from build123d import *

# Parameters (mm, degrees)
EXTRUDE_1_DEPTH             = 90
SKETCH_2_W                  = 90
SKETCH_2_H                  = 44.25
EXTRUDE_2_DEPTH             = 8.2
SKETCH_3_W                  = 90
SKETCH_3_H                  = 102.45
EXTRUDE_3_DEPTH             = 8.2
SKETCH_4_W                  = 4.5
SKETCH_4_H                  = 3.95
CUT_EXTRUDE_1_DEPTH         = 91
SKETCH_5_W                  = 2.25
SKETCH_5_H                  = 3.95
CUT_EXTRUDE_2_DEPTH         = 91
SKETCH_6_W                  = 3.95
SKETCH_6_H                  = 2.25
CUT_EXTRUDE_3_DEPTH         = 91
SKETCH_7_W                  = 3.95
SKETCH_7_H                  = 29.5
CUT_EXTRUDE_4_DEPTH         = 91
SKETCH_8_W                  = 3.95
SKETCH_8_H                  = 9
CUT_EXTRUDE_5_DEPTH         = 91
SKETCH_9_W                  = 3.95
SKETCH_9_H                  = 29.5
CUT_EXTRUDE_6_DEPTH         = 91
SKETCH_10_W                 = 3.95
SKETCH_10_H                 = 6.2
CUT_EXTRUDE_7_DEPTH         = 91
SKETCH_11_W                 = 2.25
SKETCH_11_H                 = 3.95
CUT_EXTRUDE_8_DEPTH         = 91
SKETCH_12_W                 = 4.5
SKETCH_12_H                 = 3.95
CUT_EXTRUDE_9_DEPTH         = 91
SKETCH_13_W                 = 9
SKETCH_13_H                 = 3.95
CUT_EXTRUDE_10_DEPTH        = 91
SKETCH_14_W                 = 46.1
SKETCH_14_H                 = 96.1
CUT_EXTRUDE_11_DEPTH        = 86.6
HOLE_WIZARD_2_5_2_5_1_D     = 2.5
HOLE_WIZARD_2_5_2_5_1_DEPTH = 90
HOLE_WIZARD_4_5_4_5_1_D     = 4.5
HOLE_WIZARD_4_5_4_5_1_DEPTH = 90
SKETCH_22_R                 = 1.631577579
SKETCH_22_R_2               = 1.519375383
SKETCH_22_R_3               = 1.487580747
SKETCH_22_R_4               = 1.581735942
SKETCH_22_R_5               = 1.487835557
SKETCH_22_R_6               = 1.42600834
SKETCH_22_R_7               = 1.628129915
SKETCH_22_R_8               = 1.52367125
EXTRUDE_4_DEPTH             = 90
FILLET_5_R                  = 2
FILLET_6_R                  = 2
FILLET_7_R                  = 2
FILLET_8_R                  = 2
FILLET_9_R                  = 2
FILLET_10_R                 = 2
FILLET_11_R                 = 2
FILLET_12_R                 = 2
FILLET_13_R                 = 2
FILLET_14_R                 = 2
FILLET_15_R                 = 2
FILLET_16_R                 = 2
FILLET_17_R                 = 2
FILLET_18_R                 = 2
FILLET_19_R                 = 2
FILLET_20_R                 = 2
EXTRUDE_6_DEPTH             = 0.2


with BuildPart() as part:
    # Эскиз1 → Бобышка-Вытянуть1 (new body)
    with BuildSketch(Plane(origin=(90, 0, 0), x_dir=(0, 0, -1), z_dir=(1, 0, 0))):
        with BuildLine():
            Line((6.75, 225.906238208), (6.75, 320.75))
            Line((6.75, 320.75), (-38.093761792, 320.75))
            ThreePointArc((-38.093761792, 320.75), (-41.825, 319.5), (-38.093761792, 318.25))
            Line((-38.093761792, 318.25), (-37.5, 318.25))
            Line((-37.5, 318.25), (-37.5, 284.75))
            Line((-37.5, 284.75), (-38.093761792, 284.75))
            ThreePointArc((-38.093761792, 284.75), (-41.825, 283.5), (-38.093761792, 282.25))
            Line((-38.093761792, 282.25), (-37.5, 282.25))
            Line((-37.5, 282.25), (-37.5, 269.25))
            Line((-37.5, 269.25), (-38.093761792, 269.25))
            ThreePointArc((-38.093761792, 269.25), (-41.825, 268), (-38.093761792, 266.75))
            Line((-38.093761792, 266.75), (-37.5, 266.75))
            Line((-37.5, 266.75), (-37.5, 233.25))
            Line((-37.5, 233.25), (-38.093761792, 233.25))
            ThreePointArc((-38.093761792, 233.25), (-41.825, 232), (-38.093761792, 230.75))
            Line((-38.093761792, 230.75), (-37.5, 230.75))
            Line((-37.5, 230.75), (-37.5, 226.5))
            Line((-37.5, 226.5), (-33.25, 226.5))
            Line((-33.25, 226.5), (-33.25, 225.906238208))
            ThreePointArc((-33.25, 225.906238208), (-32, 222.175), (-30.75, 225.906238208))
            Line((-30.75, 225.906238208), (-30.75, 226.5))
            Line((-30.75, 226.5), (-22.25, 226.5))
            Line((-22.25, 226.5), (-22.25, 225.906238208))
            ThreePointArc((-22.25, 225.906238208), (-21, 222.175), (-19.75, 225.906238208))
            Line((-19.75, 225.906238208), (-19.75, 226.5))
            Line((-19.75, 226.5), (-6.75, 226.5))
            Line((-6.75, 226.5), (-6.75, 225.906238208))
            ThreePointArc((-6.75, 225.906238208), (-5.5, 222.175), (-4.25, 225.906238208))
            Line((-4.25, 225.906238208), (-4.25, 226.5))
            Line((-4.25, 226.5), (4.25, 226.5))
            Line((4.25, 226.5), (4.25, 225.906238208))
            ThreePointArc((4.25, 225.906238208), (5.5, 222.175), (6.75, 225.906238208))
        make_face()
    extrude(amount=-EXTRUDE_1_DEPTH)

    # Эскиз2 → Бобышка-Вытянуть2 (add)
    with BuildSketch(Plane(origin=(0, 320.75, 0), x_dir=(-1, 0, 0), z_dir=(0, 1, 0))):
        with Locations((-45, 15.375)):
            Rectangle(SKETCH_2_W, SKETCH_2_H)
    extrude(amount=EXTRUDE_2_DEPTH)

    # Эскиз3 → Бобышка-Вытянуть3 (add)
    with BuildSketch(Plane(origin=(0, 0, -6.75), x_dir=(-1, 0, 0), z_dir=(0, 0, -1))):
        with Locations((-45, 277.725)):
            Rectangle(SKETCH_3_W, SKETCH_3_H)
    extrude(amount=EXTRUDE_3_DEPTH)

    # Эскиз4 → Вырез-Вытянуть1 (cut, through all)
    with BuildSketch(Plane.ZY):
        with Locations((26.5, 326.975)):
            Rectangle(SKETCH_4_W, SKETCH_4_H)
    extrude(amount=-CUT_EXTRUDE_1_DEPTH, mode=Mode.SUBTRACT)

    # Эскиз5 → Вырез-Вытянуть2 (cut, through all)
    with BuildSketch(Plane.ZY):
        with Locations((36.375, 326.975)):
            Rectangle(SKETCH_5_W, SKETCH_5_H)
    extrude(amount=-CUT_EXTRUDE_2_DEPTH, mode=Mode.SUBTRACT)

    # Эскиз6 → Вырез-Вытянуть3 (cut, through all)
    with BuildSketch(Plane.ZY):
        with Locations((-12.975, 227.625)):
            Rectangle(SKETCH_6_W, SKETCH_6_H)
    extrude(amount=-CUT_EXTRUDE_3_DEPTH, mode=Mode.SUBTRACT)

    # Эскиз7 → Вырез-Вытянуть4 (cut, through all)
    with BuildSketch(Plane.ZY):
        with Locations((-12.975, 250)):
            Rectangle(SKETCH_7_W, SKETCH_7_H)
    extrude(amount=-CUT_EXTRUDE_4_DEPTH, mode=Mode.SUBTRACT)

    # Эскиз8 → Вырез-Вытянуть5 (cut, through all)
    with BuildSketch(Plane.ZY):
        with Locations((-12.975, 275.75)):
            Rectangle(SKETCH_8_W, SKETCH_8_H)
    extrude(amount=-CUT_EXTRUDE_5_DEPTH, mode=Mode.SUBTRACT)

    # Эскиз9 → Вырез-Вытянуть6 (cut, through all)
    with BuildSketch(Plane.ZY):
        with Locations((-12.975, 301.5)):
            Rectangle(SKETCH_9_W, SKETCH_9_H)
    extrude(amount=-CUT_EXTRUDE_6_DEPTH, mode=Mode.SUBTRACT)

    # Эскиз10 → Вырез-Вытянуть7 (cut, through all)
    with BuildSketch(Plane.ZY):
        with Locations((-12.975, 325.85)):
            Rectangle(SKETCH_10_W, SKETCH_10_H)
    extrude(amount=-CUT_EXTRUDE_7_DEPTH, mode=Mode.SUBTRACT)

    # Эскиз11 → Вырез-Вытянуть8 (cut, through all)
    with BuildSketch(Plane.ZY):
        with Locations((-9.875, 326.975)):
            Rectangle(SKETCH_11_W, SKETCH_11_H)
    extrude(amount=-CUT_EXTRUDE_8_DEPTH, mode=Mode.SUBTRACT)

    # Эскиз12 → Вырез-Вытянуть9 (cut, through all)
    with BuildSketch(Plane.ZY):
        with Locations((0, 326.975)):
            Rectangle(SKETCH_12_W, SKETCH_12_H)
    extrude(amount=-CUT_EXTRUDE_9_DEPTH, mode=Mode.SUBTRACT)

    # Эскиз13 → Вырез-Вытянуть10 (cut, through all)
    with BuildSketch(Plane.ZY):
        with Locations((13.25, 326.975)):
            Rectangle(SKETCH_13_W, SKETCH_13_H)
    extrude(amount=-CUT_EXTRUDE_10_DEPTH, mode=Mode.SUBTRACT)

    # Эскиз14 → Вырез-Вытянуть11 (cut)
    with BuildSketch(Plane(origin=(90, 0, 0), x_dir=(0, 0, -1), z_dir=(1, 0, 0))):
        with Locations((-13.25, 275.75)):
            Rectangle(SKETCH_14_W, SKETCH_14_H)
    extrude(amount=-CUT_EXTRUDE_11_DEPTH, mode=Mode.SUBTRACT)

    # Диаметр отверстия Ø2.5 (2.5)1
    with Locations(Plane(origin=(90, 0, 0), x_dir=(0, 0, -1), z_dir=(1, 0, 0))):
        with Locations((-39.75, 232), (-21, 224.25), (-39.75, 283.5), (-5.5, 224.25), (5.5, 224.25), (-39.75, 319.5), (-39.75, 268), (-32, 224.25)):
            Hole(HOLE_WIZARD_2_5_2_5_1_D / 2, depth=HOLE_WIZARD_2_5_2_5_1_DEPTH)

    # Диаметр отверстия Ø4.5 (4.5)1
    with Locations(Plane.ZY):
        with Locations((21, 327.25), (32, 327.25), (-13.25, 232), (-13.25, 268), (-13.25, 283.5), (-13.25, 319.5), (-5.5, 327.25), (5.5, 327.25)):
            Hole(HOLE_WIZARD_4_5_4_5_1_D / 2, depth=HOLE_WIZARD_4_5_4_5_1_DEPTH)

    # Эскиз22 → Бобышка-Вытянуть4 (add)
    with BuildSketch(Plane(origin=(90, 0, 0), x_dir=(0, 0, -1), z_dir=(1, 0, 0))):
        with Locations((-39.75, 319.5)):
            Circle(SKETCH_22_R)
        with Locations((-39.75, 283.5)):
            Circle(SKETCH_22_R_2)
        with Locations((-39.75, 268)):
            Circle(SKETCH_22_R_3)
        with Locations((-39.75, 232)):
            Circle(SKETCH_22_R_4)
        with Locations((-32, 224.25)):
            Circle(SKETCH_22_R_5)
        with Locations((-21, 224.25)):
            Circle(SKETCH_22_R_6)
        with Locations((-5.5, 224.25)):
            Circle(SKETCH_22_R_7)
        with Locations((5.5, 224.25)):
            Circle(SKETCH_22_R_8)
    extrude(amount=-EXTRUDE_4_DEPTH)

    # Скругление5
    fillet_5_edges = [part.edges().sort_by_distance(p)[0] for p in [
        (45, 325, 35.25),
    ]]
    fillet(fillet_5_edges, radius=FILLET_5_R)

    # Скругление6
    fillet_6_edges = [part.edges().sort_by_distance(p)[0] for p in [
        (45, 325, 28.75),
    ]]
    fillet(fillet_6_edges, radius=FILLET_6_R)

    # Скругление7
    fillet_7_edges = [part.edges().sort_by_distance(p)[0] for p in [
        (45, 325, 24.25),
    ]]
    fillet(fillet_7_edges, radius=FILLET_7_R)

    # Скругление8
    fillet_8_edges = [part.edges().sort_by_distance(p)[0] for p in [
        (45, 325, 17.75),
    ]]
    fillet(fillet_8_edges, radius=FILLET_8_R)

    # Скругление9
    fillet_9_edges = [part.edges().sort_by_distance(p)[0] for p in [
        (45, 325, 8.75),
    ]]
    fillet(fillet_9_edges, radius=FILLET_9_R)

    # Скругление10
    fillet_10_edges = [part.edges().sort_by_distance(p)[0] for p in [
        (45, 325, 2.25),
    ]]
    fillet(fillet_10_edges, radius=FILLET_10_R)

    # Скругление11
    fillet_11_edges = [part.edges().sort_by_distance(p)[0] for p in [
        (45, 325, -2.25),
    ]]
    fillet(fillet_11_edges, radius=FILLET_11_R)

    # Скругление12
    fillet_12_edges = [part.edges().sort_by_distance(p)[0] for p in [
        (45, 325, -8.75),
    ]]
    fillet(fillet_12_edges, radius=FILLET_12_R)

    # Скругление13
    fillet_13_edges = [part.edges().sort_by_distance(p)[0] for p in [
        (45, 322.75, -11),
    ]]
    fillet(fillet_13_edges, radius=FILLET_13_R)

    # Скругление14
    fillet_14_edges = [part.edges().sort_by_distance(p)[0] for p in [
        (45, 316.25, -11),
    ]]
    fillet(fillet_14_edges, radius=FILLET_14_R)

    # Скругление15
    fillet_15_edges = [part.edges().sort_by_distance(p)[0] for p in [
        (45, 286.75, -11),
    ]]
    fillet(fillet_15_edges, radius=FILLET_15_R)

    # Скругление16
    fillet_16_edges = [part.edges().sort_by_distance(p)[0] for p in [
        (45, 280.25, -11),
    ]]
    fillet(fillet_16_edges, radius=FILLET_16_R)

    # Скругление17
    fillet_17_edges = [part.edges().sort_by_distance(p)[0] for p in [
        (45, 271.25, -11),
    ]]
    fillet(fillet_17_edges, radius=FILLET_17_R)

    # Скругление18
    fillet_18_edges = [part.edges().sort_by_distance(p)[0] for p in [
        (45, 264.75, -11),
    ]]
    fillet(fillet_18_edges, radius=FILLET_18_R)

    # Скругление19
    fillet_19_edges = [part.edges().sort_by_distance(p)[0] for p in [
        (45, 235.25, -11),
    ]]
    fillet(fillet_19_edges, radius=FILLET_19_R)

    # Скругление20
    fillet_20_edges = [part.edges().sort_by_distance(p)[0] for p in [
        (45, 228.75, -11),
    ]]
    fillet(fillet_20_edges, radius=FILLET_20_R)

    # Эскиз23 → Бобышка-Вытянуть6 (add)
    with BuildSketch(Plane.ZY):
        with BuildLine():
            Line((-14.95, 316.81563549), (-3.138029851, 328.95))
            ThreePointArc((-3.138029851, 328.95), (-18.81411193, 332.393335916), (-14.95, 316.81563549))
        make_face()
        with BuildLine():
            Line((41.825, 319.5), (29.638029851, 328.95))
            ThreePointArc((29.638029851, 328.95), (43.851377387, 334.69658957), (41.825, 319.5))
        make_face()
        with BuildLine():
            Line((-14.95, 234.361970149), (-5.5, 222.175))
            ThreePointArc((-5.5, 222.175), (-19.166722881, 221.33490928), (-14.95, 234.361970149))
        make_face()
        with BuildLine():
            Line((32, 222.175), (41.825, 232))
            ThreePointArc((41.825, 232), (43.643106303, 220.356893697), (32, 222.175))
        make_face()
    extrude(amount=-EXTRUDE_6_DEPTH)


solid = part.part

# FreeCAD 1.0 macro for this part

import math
import FreeCAD as App
import Part
import Sketcher
from FreeCAD import Vector
Q = App.Units.Quantity


def edges_at(feature, points):
    """Names of the edges that pass closest to the given points."""
    edges = feature.Shape.Edges
    near = lambda p: min(range(len(edges)), key=lambda i: edges[i].distToShape(Part.Vertex(*p))[0])
    return sorted({f"Edge{near(p) + 1}" for p in points})


def add_polygon(sketch, points):
    """Adds a closed chain of lines whose ends are joined by coincident constraints."""
    first, n = sketch.GeometryCount, len(points)
    for a, b in zip(points, points[1:] + points[:1]):
        sketch.addGeometry(Part.LineSegment(App.Vector(*a, 0), App.Vector(*b, 0)), False)
    for i in range(n):
        sketch.addConstraint(Sketcher.Constraint("Coincident", first + i, 2, first + (i + 1) % n, 1))

doc = App.newDocument("Part")
body = doc.addObject("PartDesign::Body", "Body")

sketch1 = body.newObject("Sketcher::SketchObject", "Sketch")
sketch1.AttachmentSupport = (doc.getObject("YZ_Plane"), [""])
sketch1.MapMode = "FlatFace"
sketch1.AttachmentOffset = App.Placement(Vector(0, 0, 90), App.Rotation())
sketch1.addGeometry([
    Part.LineSegment(Vector(225.9, -6.8, 0), Vector(320.8, -6.8, 0)),
    Part.LineSegment(Vector(320.8, -6.8, 0), Vector(320.8, 38.1, 0)),
    Part.ArcOfCircle(Part.Circle(Vector(319.5, 39.8, 0), Vector(0, 0, 1), 2.1), math.radians(-53), math.radians(233)),
    Part.LineSegment(Vector(318.2, 38.1, 0), Vector(318.2, 37.5, 0)),
    Part.LineSegment(Vector(318.2, 37.5, 0), Vector(284.8, 37.5, 0)),
    Part.LineSegment(Vector(284.8, 37.5, 0), Vector(284.8, 38.1, 0)),
    Part.ArcOfCircle(Part.Circle(Vector(283.5, 39.8, 0), Vector(0, 0, 1), 2.1), math.radians(-53), math.radians(233)),
    Part.LineSegment(Vector(282.2, 38.1, 0), Vector(282.2, 37.5, 0)),
    Part.LineSegment(Vector(282.2, 37.5, 0), Vector(269.2, 37.5, 0)),
    Part.LineSegment(Vector(269.2, 37.5, 0), Vector(269.2, 38.1, 0)),
    Part.ArcOfCircle(Part.Circle(Vector(268, 39.8, 0), Vector(0, 0, 1), 2.1), math.radians(-53), math.radians(233)),
    Part.LineSegment(Vector(266.8, 38.1, 0), Vector(266.8, 37.5, 0)),
    Part.LineSegment(Vector(266.8, 37.5, 0), Vector(233.2, 37.5, 0)),
    Part.LineSegment(Vector(233.2, 37.5, 0), Vector(233.2, 38.1, 0)),
    Part.ArcOfCircle(Part.Circle(Vector(232, 39.8, 0), Vector(0, 0, 1), 2.1), math.radians(-53), math.radians(233)),
    Part.LineSegment(Vector(230.8, 38.1, 0), Vector(230.8, 37.5, 0)),
    Part.LineSegment(Vector(230.8, 37.5, 0), Vector(226.5, 37.5, 0)),
    Part.LineSegment(Vector(226.5, 37.5, 0), Vector(226.5, 33.2, 0)),
    Part.LineSegment(Vector(226.5, 33.2, 0), Vector(225.9, 33.2, 0)),
    Part.ArcOfCircle(Part.Circle(Vector(224.2, 32, 0), Vector(0, 0, 1), 2.1), math.radians(37), math.radians(323)),
    Part.LineSegment(Vector(225.9, 30.8, 0), Vector(226.5, 30.8, 0)),
    Part.LineSegment(Vector(226.5, 30.8, 0), Vector(226.5, 22.2, 0)),
    Part.LineSegment(Vector(226.5, 22.2, 0), Vector(225.9, 22.2, 0)),
    Part.ArcOfCircle(Part.Circle(Vector(224.2, 21, 0), Vector(0, 0, 1), 2.1), math.radians(37), math.radians(323)),
    Part.LineSegment(Vector(225.9, 19.8, 0), Vector(226.5, 19.8, 0)),
    Part.LineSegment(Vector(226.5, 19.8, 0), Vector(226.5, 6.8, 0)),
    Part.LineSegment(Vector(226.5, 6.8, 0), Vector(225.9, 6.8, 0)),
    Part.ArcOfCircle(Part.Circle(Vector(224.2, 5.5, 0), Vector(0, 0, 1), 2.1), math.radians(37), math.radians(323)),
    Part.LineSegment(Vector(225.9, 4.2, 0), Vector(226.5, 4.2, 0)),
    Part.LineSegment(Vector(226.5, 4.2, 0), Vector(226.5, -4.2, 0)),
    Part.LineSegment(Vector(226.5, -4.2, 0), Vector(225.9, -4.2, 0)),
    Part.ArcOfCircle(Part.Circle(Vector(224.2, -5.5, 0), Vector(0, 0, 1), 2.1), math.radians(37), math.radians(323)),
], False)
sketch1.addConstraint([
    Sketcher.Constraint("Coincident", 0, 2, 1, 1),
    Sketcher.Constraint("Coincident", 1, 2, 2, 1),
    Sketcher.Constraint("Coincident", 2, 2, 3, 1),
    Sketcher.Constraint("Coincident", 3, 2, 4, 1),
    Sketcher.Constraint("Coincident", 4, 2, 5, 1),
    Sketcher.Constraint("Coincident", 5, 2, 6, 1),
    Sketcher.Constraint("Coincident", 6, 2, 7, 1),
    Sketcher.Constraint("Coincident", 7, 2, 8, 1),
    Sketcher.Constraint("Coincident", 8, 2, 9, 1),
    Sketcher.Constraint("Coincident", 9, 2, 10, 1),
    Sketcher.Constraint("Coincident", 10, 2, 11, 1),
    Sketcher.Constraint("Coincident", 11, 2, 12, 1),
    Sketcher.Constraint("Coincident", 12, 2, 13, 1),
    Sketcher.Constraint("Coincident", 13, 2, 14, 1),
    Sketcher.Constraint("Coincident", 14, 2, 15, 1),
    Sketcher.Constraint("Coincident", 15, 2, 16, 1),
    Sketcher.Constraint("Coincident", 16, 2, 17, 1),
    Sketcher.Constraint("Coincident", 17, 2, 18, 1),
    Sketcher.Constraint("Coincident", 18, 2, 19, 1),
    Sketcher.Constraint("Coincident", 19, 2, 20, 1),
    Sketcher.Constraint("Coincident", 20, 2, 21, 1),
    Sketcher.Constraint("Coincident", 21, 2, 22, 1),
    Sketcher.Constraint("Coincident", 22, 2, 23, 1),
    Sketcher.Constraint("Coincident", 23, 2, 24, 1),
    Sketcher.Constraint("Coincident", 24, 2, 25, 1),
    Sketcher.Constraint("Coincident", 25, 2, 26, 1),
    Sketcher.Constraint("Coincident", 26, 2, 27, 1),
    Sketcher.Constraint("Coincident", 27, 2, 28, 1),
    Sketcher.Constraint("Coincident", 28, 2, 29, 1),
    Sketcher.Constraint("Coincident", 29, 2, 30, 1),
    Sketcher.Constraint("Coincident", 30, 2, 31, 1),
    Sketcher.Constraint("Coincident", 31, 2, 0, 1),
    Sketcher.Constraint("Horizontal", 0),
    Sketcher.Constraint("Vertical", 1),
    Sketcher.Constraint("Vertical", 3),
    Sketcher.Constraint("Horizontal", 4),
    Sketcher.Constraint("Vertical", 5),
    Sketcher.Constraint("Vertical", 7),
    Sketcher.Constraint("Horizontal", 8),
    Sketcher.Constraint("Vertical", 9),
    Sketcher.Constraint("Vertical", 11),
    Sketcher.Constraint("Horizontal", 12),
    Sketcher.Constraint("Vertical", 13),
    Sketcher.Constraint("Vertical", 15),
    Sketcher.Constraint("Horizontal", 16),
    Sketcher.Constraint("Vertical", 17),
    Sketcher.Constraint("Horizontal", 18),
    Sketcher.Constraint("Horizontal", 20),
    Sketcher.Constraint("Vertical", 21),
    Sketcher.Constraint("Horizontal", 22),
    Sketcher.Constraint("Horizontal", 24),
    Sketcher.Constraint("Vertical", 25),
    Sketcher.Constraint("Horizontal", 26),
    Sketcher.Constraint("Horizontal", 28),
    Sketcher.Constraint("Vertical", 29),
    Sketcher.Constraint("Horizontal", 30),
    Sketcher.Constraint("Equal", 2, 6),
    Sketcher.Constraint("Equal", 6, 10),
    Sketcher.Constraint("Equal", 10, 14),
    Sketcher.Constraint("Equal", 14, 19),
    Sketcher.Constraint("Equal", 19, 23),
    Sketcher.Constraint("Equal", 23, 27),
    Sketcher.Constraint("Equal", 27, 31),
    Sketcher.Constraint("Symmetric", 27, 3, 31, 3, -1),
    Sketcher.Constraint("Horizontal", 2, 3, 6, 3),
    Sketcher.Constraint("Horizontal", 6, 3, 10, 3),
    Sketcher.Constraint("Horizontal", 10, 3, 14, 3),
    Sketcher.Constraint("Horizontal", 1, 2, 2, 2),
    Sketcher.Constraint("Horizontal", 2, 2, 5, 2),
    Sketcher.Constraint("Horizontal", 5, 2, 6, 2),
    Sketcher.Constraint("Horizontal", 4, 2, 7, 2),
    Sketcher.Constraint("Horizontal", 6, 2, 9, 2),
    Sketcher.Constraint("Horizontal", 9, 2, 10, 2),
    Sketcher.Constraint("Horizontal", 8, 2, 11, 2),
    Sketcher.Constraint("Horizontal", 10, 2, 13, 2),
    Sketcher.Constraint("Horizontal", 13, 2, 14, 2),
    Sketcher.Constraint("Horizontal", 12, 2, 15, 2),
    Sketcher.Constraint("Vertical", 19, 3, 23, 3),
    Sketcher.Constraint("Vertical", 23, 3, 27, 3),
    Sketcher.Constraint("Vertical", 18, 2, 19, 2),
    Sketcher.Constraint("Vertical", 17, 2, 20, 2),
    Sketcher.Constraint("Vertical", 19, 2, 22, 2),
    Sketcher.Constraint("Vertical", 22, 2, 23, 2),
    Sketcher.Constraint("Vertical", 21, 2, 24, 2),
    Sketcher.Constraint("Vertical", 23, 2, 26, 2),
    Sketcher.Constraint("Vertical", 26, 2, 27, 2),
    Sketcher.Constraint("Vertical", 25, 2, 28, 2),
    Sketcher.Constraint("Vertical", 27, 2, 30, 2),
    Sketcher.Constraint("Vertical", 30, 2, 31, 2),
    Sketcher.Constraint("Equal", 4, 12),
    Sketcher.Constraint("Equal", 30, 3),
    Sketcher.Constraint("Equal", 16, 17),
    Sketcher.Constraint("Equal", 8, 25),
    Sketcher.Constraint("Equal", 21, 29),
    Sketcher.Constraint("DistanceX", 8, 2, 8, 1, 13.0),
    Sketcher.Constraint("DistanceX", 4, 2, 4, 1, 33.5),
    Sketcher.Constraint("DistanceY", 21, 2, 21, 1, 8.5),
    Sketcher.Constraint("DistanceX", -1, 1, 10, 3, 268.0),
    Sketcher.Constraint("DistanceX", -1, 1, 14, 3, 232.0),
    Sketcher.Constraint("DistanceY", -1, 1, 19, 3, 32.0),
    Sketcher.Constraint("Radius", 2, 2.075),
    Sketcher.Constraint("DistanceX", 19, 3, 12, 2, 9.0),
    Sketcher.Constraint("DistanceY", 27, 3, 12, 2, 32.0),
])
pad1 = body.newObject("PartDesign::Pad", "Pad")
pad1.Profile = sketch1
pad1.Length = 90
pad1.Reversed = True

sketch2 = body.newObject("Sketcher::SketchObject", "Sketch001")
sketch2.AttachmentSupport = (doc.getObject("XZ_Plane"), [""])
sketch2.MapMode = "FlatFace"
sketch2.AttachmentOffset = App.Placement(Vector(0, 0, -320.75), App.Rotation())
add_polygon(sketch2, [(90, 38), (90, -7), (0, -7), (0, 38)])
sketch2.addConstraint([
    Sketcher.Constraint("Vertical", 0),
    Sketcher.Constraint("Horizontal", 1),
    Sketcher.Constraint("Vertical", 2),
    Sketcher.Constraint("Horizontal", 3),
    Sketcher.Constraint("PointOnObject", 1, 2, -2),
    Sketcher.Constraint("DistanceX", 1, 2, 1, 1, 90.0),
    Sketcher.Constraint("DistanceY", 0, 2, 0, 1, 44.25),
    Sketcher.Constraint("DistanceY", -1, 1, 2, 2, 37.5),
])
pad2 = body.newObject("PartDesign::Pad", "Pad001")
pad2.Profile = sketch2
pad2.Length = 8.2
pad2.Reversed = True

sketch3 = body.newObject("Sketcher::SketchObject", "Sketch002")
sketch3.AttachmentSupport = (doc.getObject("XY_Plane"), [""])
sketch3.MapMode = "FlatFace"
sketch3.AttachmentOffset = App.Placement(Vector(0, 0, -6.75), App.Rotation())
add_polygon(sketch3, [(90, 329), (90, 226), (0, 226), (0, 329)])
sketch3.addConstraint([
    Sketcher.Constraint("Vertical", 0),
    Sketcher.Constraint("Horizontal", 1),
    Sketcher.Constraint("Vertical", 2),
    Sketcher.Constraint("Horizontal", 3),
    Sketcher.Constraint("PointOnObject", 1, 2, -2),
    Sketcher.Constraint("DistanceX", 1, 2, 1, 1, 90.0),
    Sketcher.Constraint("DistanceY", 0, 2, 0, 1, 102.45),
    Sketcher.Constraint("DistanceY", -1, 1, 0, 2, 226.5),
])
pad3 = body.newObject("PartDesign::Pad", "Pad002")
pad3.Profile = sketch3
pad3.Length = 8.2
pad3.Reversed = True

sketch4 = body.newObject("Sketcher::SketchObject", "Sketch003")
sketch4.AttachmentSupport = (doc.getObject("YZ_Plane"), [""])
sketch4.MapMode = "FlatFace"
add_polygon(sketch4, [(328.9, 24.2), (325, 24.2), (325, 28.8), (328.9, 28.8)])
sketch4.addConstraint([
    Sketcher.Constraint("Horizontal", 0),
    Sketcher.Constraint("Vertical", 1),
    Sketcher.Constraint("Horizontal", 2),
    Sketcher.Constraint("Vertical", 3),
    Sketcher.Constraint("DistanceY", 1, 1, 1, 2, 4.5),
    Sketcher.Constraint("DistanceX", -1, 1, 0, 2, 325.0),
    Sketcher.Constraint("DistanceX", 0, 2, 0, 1, 3.95),
    Sketcher.Constraint("DistanceY", -1, 1, 0, 2, 24.25),
])
pocket1 = body.newObject("PartDesign::Pocket", "Pocket")
pocket1.Profile = sketch4
pocket1.Type = "ThroughAll"
pocket1.Reversed = True

sketch5 = body.newObject("Sketcher::SketchObject", "Sketch004")
sketch5.AttachmentSupport = (doc.getObject("YZ_Plane"), [""])
sketch5.MapMode = "FlatFace"
add_polygon(sketch5, [(328.9, 35.2), (325, 35.2), (325, 37.5), (328.9, 37.5)])
sketch5.addConstraint([
    Sketcher.Constraint("Horizontal", 0),
    Sketcher.Constraint("Vertical", 1),
    Sketcher.Constraint("Horizontal", 2),
    Sketcher.Constraint("Vertical", 3),
    Sketcher.Constraint("DistanceX", -1, 1, 0, 2, 325.0),
    Sketcher.Constraint("DistanceX", 0, 2, 0, 1, 3.95),
    Sketcher.Constraint("DistanceY", 1, 1, 1, 2, 2.25),
    Sketcher.Constraint("DistanceY", -1, 1, 1, 2, 37.5),
])
pocket2 = body.newObject("PartDesign::Pocket", "Pocket001")
pocket2.Profile = sketch5
pocket2.Type = "ThroughAll"
pocket2.Reversed = True

sketch6 = body.newObject("Sketcher::SketchObject", "Sketch005")
sketch6.AttachmentSupport = (doc.getObject("YZ_Plane"), [""])
sketch6.MapMode = "FlatFace"
add_polygon(sketch6, [(228.8, -14.9), (226.5, -14.9), (226.5, -11), (228.8, -11)])
sketch6.addConstraint([
    Sketcher.Constraint("Horizontal", 0),
    Sketcher.Constraint("Vertical", 1),
    Sketcher.Constraint("Horizontal", 2),
    Sketcher.Constraint("Vertical", 3),
    Sketcher.Constraint("DistanceY", 1, 2, -1, 1, 11.0),
    Sketcher.Constraint("DistanceX", 0, 2, 0, 1, 2.25),
    Sketcher.Constraint("DistanceY", 1, 1, 1, 2, 3.95),
    Sketcher.Constraint("DistanceX", -1, 1, 0, 2, 226.5),
])
pocket3 = body.newObject("PartDesign::Pocket", "Pocket002")
pocket3.Profile = sketch6
pocket3.Type = "ThroughAll"
pocket3.Reversed = True

sketch7 = body.newObject("Sketcher::SketchObject", "Sketch006")
sketch7.AttachmentSupport = (doc.getObject("YZ_Plane"), [""])
sketch7.MapMode = "FlatFace"
add_polygon(sketch7, [(264.8, -14.9), (235.2, -14.9), (235.2, -11), (264.8, -11)])
sketch7.addConstraint([
    Sketcher.Constraint("Horizontal", 0),
    Sketcher.Constraint("Vertical", 1),
    Sketcher.Constraint("Horizontal", 2),
    Sketcher.Constraint("Vertical", 3),
    Sketcher.Constraint("DistanceX", 0, 2, 0, 1, 29.5),
    Sketcher.Constraint("DistanceY", 1, 2, -1, 1, 11.0),
    Sketcher.Constraint("DistanceY", 1, 1, 1, 2, 3.95),
    Sketcher.Constraint("DistanceX", -1, 1, 0, 2, 235.25),
])
pocket4 = body.newObject("PartDesign::Pocket", "Pocket003")
pocket4.Profile = sketch7
pocket4.Type = "ThroughAll"
pocket4.Reversed = True

sketch8 = body.newObject("Sketcher::SketchObject", "Sketch007")
sketch8.AttachmentSupport = (doc.getObject("YZ_Plane"), [""])
sketch8.MapMode = "FlatFace"
add_polygon(sketch8, [(280.2, -14.9), (271.2, -14.9), (271.2, -11), (280.2, -11)])
sketch8.addConstraint([
    Sketcher.Constraint("Horizontal", 0),
    Sketcher.Constraint("Vertical", 1),
    Sketcher.Constraint("Horizontal", 2),
    Sketcher.Constraint("Vertical", 3),
    Sketcher.Constraint("DistanceX", 0, 2, 0, 1, 9.0),
    Sketcher.Constraint("DistanceY", 1, 2, -1, 1, 11.0),
    Sketcher.Constraint("DistanceY", 1, 1, 1, 2, 3.95),
    Sketcher.Constraint("DistanceX", -1, 1, 0, 2, 271.25),
])
pocket5 = body.newObject("PartDesign::Pocket", "Pocket004")
pocket5.Profile = sketch8
pocket5.Type = "ThroughAll"
pocket5.Reversed = True

sketch9 = body.newObject("Sketcher::SketchObject", "Sketch008")
sketch9.AttachmentSupport = (doc.getObject("YZ_Plane"), [""])
sketch9.MapMode = "FlatFace"
add_polygon(sketch9, [(316.2, -14.9), (286.8, -14.9), (286.8, -11), (316.2, -11)])
sketch9.addConstraint([
    Sketcher.Constraint("Horizontal", 0),
    Sketcher.Constraint("Vertical", 1),
    Sketcher.Constraint("Horizontal", 2),
    Sketcher.Constraint("Vertical", 3),
    Sketcher.Constraint("DistanceX", 0, 2, 0, 1, 29.5),
    Sketcher.Constraint("DistanceY", 1, 2, -1, 1, 11.0),
    Sketcher.Constraint("DistanceY", 1, 1, 1, 2, 3.95),
    Sketcher.Constraint("DistanceX", -1, 1, 0, 2, 286.75),
])
pocket6 = body.newObject("PartDesign::Pocket", "Pocket005")
pocket6.Profile = sketch9
pocket6.Type = "ThroughAll"
pocket6.Reversed = True

sketch10 = body.newObject("Sketcher::SketchObject", "Sketch009")
sketch10.AttachmentSupport = (doc.getObject("YZ_Plane"), [""])
sketch10.MapMode = "FlatFace"
add_polygon(sketch10, [(328.9, -14.9), (322.8, -14.9), (322.8, -11), (328.9, -11)])
sketch10.addConstraint([
    Sketcher.Constraint("Horizontal", 0),
    Sketcher.Constraint("Vertical", 1),
    Sketcher.Constraint("Horizontal", 2),
    Sketcher.Constraint("Vertical", 3),
    Sketcher.Constraint("DistanceX", 0, 2, 0, 1, 6.2),
    Sketcher.Constraint("DistanceY", 1, 2, -1, 1, 11.0),
    Sketcher.Constraint("DistanceY", 1, 1, 1, 2, 3.95),
    Sketcher.Constraint("DistanceX", -1, 1, 0, 2, 322.75),
])
pocket7 = body.newObject("PartDesign::Pocket", "Pocket006")
pocket7.Profile = sketch10
pocket7.Type = "ThroughAll"
pocket7.Reversed = True

sketch11 = body.newObject("Sketcher::SketchObject", "Sketch010")
sketch11.AttachmentSupport = (doc.getObject("YZ_Plane"), [""])
sketch11.MapMode = "FlatFace"
add_polygon(sketch11, [(328.9, -11), (325, -11), (325, -8.8), (328.9, -8.8)])
sketch11.addConstraint([
    Sketcher.Constraint("Horizontal", 0),
    Sketcher.Constraint("Vertical", 1),
    Sketcher.Constraint("Horizontal", 2),
    Sketcher.Constraint("Vertical", 3),
    Sketcher.Constraint("DistanceX", -1, 1, 0, 2, 325.0),
    Sketcher.Constraint("DistanceY", 0, 2, -1, 1, 11.0),
    Sketcher.Constraint("DistanceX", 0, 2, 0, 1, 3.95),
    Sketcher.Constraint("DistanceY", 1, 1, 1, 2, 2.25),
])
pocket8 = body.newObject("PartDesign::Pocket", "Pocket007")
pocket8.Profile = sketch11
pocket8.Type = "ThroughAll"
pocket8.Reversed = True

sketch12 = body.newObject("Sketcher::SketchObject", "Sketch011")
sketch12.AttachmentSupport = (doc.getObject("YZ_Plane"), [""])
sketch12.MapMode = "FlatFace"
add_polygon(sketch12, [(328.9, -2.2), (325, -2.2), (325, 2.2), (328.9, 2.2)])
sketch12.addConstraint([
    Sketcher.Constraint("Horizontal", 0),
    Sketcher.Constraint("Vertical", 1),
    Sketcher.Constraint("Horizontal", 2),
    Sketcher.Constraint("Vertical", 3),
    Sketcher.Constraint("DistanceY", 1, 1, 1, 2, 4.5),
    Sketcher.Constraint("DistanceX", -1, 1, 0, 2, 325.0),
    Sketcher.Constraint("DistanceX", 0, 2, 0, 1, 3.95),
    Sketcher.Constraint("DistanceY", 0, 2, -1, 1, 2.25),
])
pocket9 = body.newObject("PartDesign::Pocket", "Pocket008")
pocket9.Profile = sketch12
pocket9.Type = "ThroughAll"
pocket9.Reversed = True

sketch13 = body.newObject("Sketcher::SketchObject", "Sketch012")
sketch13.AttachmentSupport = (doc.getObject("YZ_Plane"), [""])
sketch13.MapMode = "FlatFace"
add_polygon(sketch13, [(328.9, 8.8), (325, 8.8), (325, 17.8), (328.9, 17.8)])
sketch13.addConstraint([
    Sketcher.Constraint("Horizontal", 0),
    Sketcher.Constraint("Vertical", 1),
    Sketcher.Constraint("Horizontal", 2),
    Sketcher.Constraint("Vertical", 3),
    Sketcher.Constraint("DistanceY", 1, 1, 1, 2, 9.0),
    Sketcher.Constraint("DistanceX", -1, 1, 0, 2, 325.0),
    Sketcher.Constraint("DistanceX", 0, 2, 0, 1, 3.95),
    Sketcher.Constraint("DistanceY", -1, 1, 0, 2, 8.75),
])
pocket10 = body.newObject("PartDesign::Pocket", "Pocket009")
pocket10.Profile = sketch13
pocket10.Type = "ThroughAll"
pocket10.Reversed = True

sketch14 = body.newObject("Sketcher::SketchObject", "Sketch013")
sketch14.AttachmentSupport = (doc.getObject("YZ_Plane"), [""])
sketch14.MapMode = "FlatFace"
sketch14.AttachmentOffset = App.Placement(Vector(0, 0, 90), App.Rotation())
add_polygon(sketch14, [(324, 36), (228, 36), (228, -10), (324, -10)])
sketch14.addConstraint([
    Sketcher.Constraint("Horizontal", 0),
    Sketcher.Constraint("Vertical", 1),
    Sketcher.Constraint("Horizontal", 2),
    Sketcher.Constraint("Vertical", 3),
    Sketcher.Constraint("DistanceX", 0, 2, 0, 1, 96.1),
    Sketcher.Constraint("DistanceY", 1, 2, 1, 1, 46.1),
    Sketcher.Constraint("DistanceX", -1, 1, 0, 2, 227.7),
    Sketcher.Constraint("DistanceY", -1, 1, 0, 2, 36.3),
])
pocket11 = body.newObject("PartDesign::Pocket", "Pocket010")
pocket11.Profile = sketch14
pocket11.Length = 86.6

sketch15 = body.newObject("Sketcher::SketchObject", "Sketch014")
sketch15.AttachmentSupport = (doc.getObject("YZ_Plane"), [""])
sketch15.MapMode = "FlatFace"
sketch15.AttachmentOffset = App.Placement(Vector(0, 0, 90), App.Rotation())
sketch15.addGeometry([
    Part.Circle(Vector(232, 39.8, 0), Vector(0, 0, 1), 1.2),
    Part.Circle(Vector(224.2, 21, 0), Vector(0, 0, 1), 1.2),
    Part.Circle(Vector(283.5, 39.8, 0), Vector(0, 0, 1), 1.2),
    Part.Circle(Vector(224.2, 5.5, 0), Vector(0, 0, 1), 1.2),
    Part.Circle(Vector(224.2, -5.5, 0), Vector(0, 0, 1), 1.2),
    Part.Circle(Vector(319.5, 39.8, 0), Vector(0, 0, 1), 1.2),
    Part.Circle(Vector(268, 39.8, 0), Vector(0, 0, 1), 1.2),
    Part.Circle(Vector(224.2, 32, 0), Vector(0, 0, 1), 1.2),
], False)
sketch15.addConstraint([
    Sketcher.Constraint("Equal", 0, 1),
    Sketcher.Constraint("Equal", 1, 2),
    Sketcher.Constraint("Equal", 2, 3),
    Sketcher.Constraint("Equal", 3, 4),
    Sketcher.Constraint("Equal", 4, 5),
    Sketcher.Constraint("Equal", 5, 6),
    Sketcher.Constraint("Equal", 6, 7),
    Sketcher.Constraint("Symmetric", 3, 3, 4, 3, -1),
    Sketcher.Constraint("Horizontal", 0, 3, 2, 3),
    Sketcher.Constraint("Horizontal", 2, 3, 5, 3),
    Sketcher.Constraint("Horizontal", 5, 3, 6, 3),
    Sketcher.Constraint("Vertical", 1, 3, 3, 3),
    Sketcher.Constraint("Vertical", 4, 3, 7, 3),
    Sketcher.Constraint("Diameter", 0, 2.5),
    Sketcher.Constraint("DistanceX", -1, 1, 0, 3, 232.0),
    Sketcher.Constraint("DistanceY", -1, 1, 1, 3, 21.0),
    Sketcher.Constraint("DistanceX", -1, 1, 6, 3, 268.0),
    Sketcher.Constraint("DistanceY", -1, 1, 7, 3, 32.0),
    Sketcher.Constraint("DistanceY", 4, 3, 3, 3, 11.0),
    Sketcher.Constraint("DistanceX", 2, 3, 5, 3, 36.0),
    Sketcher.Constraint("DistanceX", -1, 1, 2, 3, 283.5),
    Sketcher.Constraint("DistanceY", -1, 1, 0, 3, 39.75),
    Sketcher.Constraint("DistanceX", -1, 1, 1, 3, 224.25),
])
doc.recompute()
hole = body.newObject("PartDesign::Hole", "Hole")
hole.Profile = sketch15
hole.ThreadType = "None"
hole.Diameter = 2.5
hole.DepthType = "Dimension"
hole.Depth = 90
hole.DrillPoint = "Flat"

sketch16 = body.newObject("Sketcher::SketchObject", "Sketch015")
sketch16.AttachmentSupport = (doc.getObject("YZ_Plane"), [""])
sketch16.MapMode = "FlatFace"
sketch16.addGeometry([
    Part.Circle(Vector(327.2, 21, 0), Vector(0, 0, 1), 2.2),
    Part.Circle(Vector(327.2, 32, 0), Vector(0, 0, 1), 2.2),
    Part.Circle(Vector(232, -13.2, 0), Vector(0, 0, 1), 2.2),
    Part.Circle(Vector(268, -13.2, 0), Vector(0, 0, 1), 2.2),
    Part.Circle(Vector(283.5, -13.2, 0), Vector(0, 0, 1), 2.2),
    Part.Circle(Vector(319.5, -13.2, 0), Vector(0, 0, 1), 2.2),
    Part.Circle(Vector(327.2, -5.5, 0), Vector(0, 0, 1), 2.2),
    Part.Circle(Vector(327.2, 5.5, 0), Vector(0, 0, 1), 2.2),
], False)
sketch16.addConstraint([
    Sketcher.Constraint("Equal", 0, 1),
    Sketcher.Constraint("Equal", 1, 2),
    Sketcher.Constraint("Equal", 2, 3),
    Sketcher.Constraint("Equal", 3, 4),
    Sketcher.Constraint("Equal", 4, 5),
    Sketcher.Constraint("Equal", 5, 6),
    Sketcher.Constraint("Equal", 6, 7),
    Sketcher.Constraint("Symmetric", 6, 3, 7, 3, -1),
    Sketcher.Constraint("Horizontal", 2, 3, 3, 3),
    Sketcher.Constraint("Horizontal", 3, 3, 4, 3),
    Sketcher.Constraint("Horizontal", 4, 3, 5, 3),
    Sketcher.Constraint("Vertical", 0, 3, 1, 3),
    Sketcher.Constraint("Vertical", 1, 3, 6, 3),
    Sketcher.Constraint("Diameter", 0, 4.5),
    Sketcher.Constraint("DistanceY", -1, 1, 0, 3, 21.0),
    Sketcher.Constraint("DistanceY", -1, 1, 1, 3, 32.0),
    Sketcher.Constraint("DistanceX", -1, 1, 2, 3, 232.0),
    Sketcher.Constraint("DistanceX", -1, 1, 3, 3, 268.0),
    Sketcher.Constraint("DistanceX", 4, 3, 5, 3, 36.0),
    Sketcher.Constraint("DistanceY", 6, 3, 7, 3, 11.0),
    Sketcher.Constraint("DistanceX", -1, 1, 4, 3, 283.5),
    Sketcher.Constraint("DistanceX", -1, 1, 0, 3, 327.25),
    Sketcher.Constraint("DistanceY", 2, 3, -1, 1, 13.25),
])
doc.recompute()
hole2 = body.newObject("PartDesign::Hole", "Hole001")
hole2.Profile = sketch16
hole2.ThreadType = "None"
hole2.Diameter = 4.5
hole2.DepthType = "Dimension"
hole2.Depth = 90
hole2.DrillPoint = "Flat"
hole2.Reversed = True

sketch17 = body.newObject("Sketcher::SketchObject", "Sketch016")
sketch17.AttachmentSupport = (doc.getObject("YZ_Plane"), [""])
sketch17.MapMode = "FlatFace"
sketch17.AttachmentOffset = App.Placement(Vector(0, 0, 90), App.Rotation())
sketch17.addGeometry([
    Part.Circle(Vector(319.5, 39.8, 0), Vector(0, 0, 1), 1.6),
    Part.Circle(Vector(283.5, 39.8, 0), Vector(0, 0, 1), 1.5),
    Part.Circle(Vector(268, 39.8, 0), Vector(0, 0, 1), 1.5),
    Part.Circle(Vector(232, 39.8, 0), Vector(0, 0, 1), 1.6),
    Part.Circle(Vector(224.2, 32, 0), Vector(0, 0, 1), 1.5),
    Part.Circle(Vector(224.2, 21, 0), Vector(0, 0, 1), 1.4),
    Part.Circle(Vector(224.2, 5.5, 0), Vector(0, 0, 1), 1.6),
    Part.Circle(Vector(224.2, -5.5, 0), Vector(0, 0, 1), 1.5),
], False)
sketch17.addConstraint([
    Sketcher.Constraint("Symmetric", 6, 3, 7, 3, -1),
    Sketcher.Constraint("Horizontal", 0, 3, 1, 3),
    Sketcher.Constraint("Horizontal", 1, 3, 2, 3),
    Sketcher.Constraint("Horizontal", 2, 3, 3, 3),
    Sketcher.Constraint("Vertical", 4, 3, 5, 3),
    Sketcher.Constraint("Vertical", 5, 3, 6, 3),
    Sketcher.Constraint("DistanceX", -1, 1, 2, 3, 268.0),
    Sketcher.Constraint("DistanceX", -1, 1, 3, 3, 232.0),
    Sketcher.Constraint("DistanceY", -1, 1, 4, 3, 32.0),
    Sketcher.Constraint("DistanceY", -1, 1, 5, 3, 21.0),
    Sketcher.Constraint("DistanceX", 1, 3, 0, 3, 36.0),
    Sketcher.Constraint("DistanceY", 7, 3, 6, 3, 11.0),
    Sketcher.Constraint("DistanceX", -1, 1, 0, 3, 319.5),
    Sketcher.Constraint("Diameter", 1, 3.038751),
    Sketcher.Constraint("Diameter", 2, 2.975161),
    Sketcher.Constraint("Diameter", 3, 3.163472),
    Sketcher.Constraint("Diameter", 4, 2.975671),
    Sketcher.Constraint("Diameter", 6, 3.25626),
    Sketcher.Constraint("DistanceY", -1, 1, 0, 3, 39.75),
    Sketcher.Constraint("DistanceX", -1, 1, 4, 3, 224.25),
    Sketcher.Constraint("Diameter", 0, 3.263155),
    Sketcher.Constraint("Diameter", 5, 2.852017),
    Sketcher.Constraint("Diameter", 7, 3.047343),
])
pad4 = body.newObject("PartDesign::Pad", "Pad003")
pad4.Profile = sketch17
pad4.Length = 90
pad4.Reversed = True
doc.recompute()

fillet = body.newObject("PartDesign::Fillet", "Fillet")
fillet.Base = (pad4, edges_at(pad4, [(45, 325, 35.25)]))
fillet.Radius = 2
doc.recompute()

fillet2 = body.newObject("PartDesign::Fillet", "Fillet001")
fillet2.Base = (fillet, edges_at(fillet, [(45, 325, 28.75)]))
fillet2.Radius = 2
doc.recompute()

fillet3 = body.newObject("PartDesign::Fillet", "Fillet002")
fillet3.Base = (fillet2, edges_at(fillet2, [(45, 325, 24.25)]))
fillet3.Radius = 2
doc.recompute()

fillet4 = body.newObject("PartDesign::Fillet", "Fillet003")
fillet4.Base = (fillet3, edges_at(fillet3, [(45, 325, 17.75)]))
fillet4.Radius = 2
doc.recompute()

fillet5 = body.newObject("PartDesign::Fillet", "Fillet004")
fillet5.Base = (fillet4, edges_at(fillet4, [(45, 325, 8.75)]))
fillet5.Radius = 2
doc.recompute()

fillet6 = body.newObject("PartDesign::Fillet", "Fillet005")
fillet6.Base = (fillet5, edges_at(fillet5, [(45, 325, 2.25)]))
fillet6.Radius = 2
doc.recompute()

fillet7 = body.newObject("PartDesign::Fillet", "Fillet006")
fillet7.Base = (fillet6, edges_at(fillet6, [(45, 325, -2.25)]))
fillet7.Radius = 2
doc.recompute()

fillet8 = body.newObject("PartDesign::Fillet", "Fillet007")
fillet8.Base = (fillet7, edges_at(fillet7, [(45, 325, -8.75)]))
fillet8.Radius = 2
doc.recompute()

fillet9 = body.newObject("PartDesign::Fillet", "Fillet008")
fillet9.Base = (fillet8, edges_at(fillet8, [(45, 322.75, -11)]))
fillet9.Radius = 2
doc.recompute()

fillet10 = body.newObject("PartDesign::Fillet", "Fillet009")
fillet10.Base = (fillet9, edges_at(fillet9, [(45, 316.25, -11)]))
fillet10.Radius = 2
doc.recompute()

fillet11 = body.newObject("PartDesign::Fillet", "Fillet010")
fillet11.Base = (fillet10, edges_at(fillet10, [(45, 286.75, -11)]))
fillet11.Radius = 2
doc.recompute()

fillet12 = body.newObject("PartDesign::Fillet", "Fillet011")
fillet12.Base = (fillet11, edges_at(fillet11, [(45, 280.25, -11)]))
fillet12.Radius = 2
doc.recompute()

fillet13 = body.newObject("PartDesign::Fillet", "Fillet012")
fillet13.Base = (fillet12, edges_at(fillet12, [(45, 271.25, -11)]))
fillet13.Radius = 2
doc.recompute()

fillet14 = body.newObject("PartDesign::Fillet", "Fillet013")
fillet14.Base = (fillet13, edges_at(fillet13, [(45, 264.75, -11)]))
fillet14.Radius = 2
doc.recompute()

fillet15 = body.newObject("PartDesign::Fillet", "Fillet014")
fillet15.Base = (fillet14, edges_at(fillet14, [(45, 235.25, -11)]))
fillet15.Radius = 2
doc.recompute()

fillet16 = body.newObject("PartDesign::Fillet", "Fillet015")
fillet16.Base = (fillet15, edges_at(fillet15, [(45, 228.75, -11)]))
fillet16.Radius = 2

sketch18 = body.newObject("Sketcher::SketchObject", "Sketch017")
sketch18.AttachmentSupport = (doc.getObject("YZ_Plane"), [""])
sketch18.MapMode = "FlatFace"
sketch18.addGeometry([
    Part.LineSegment(Vector(317, -15, 0), Vector(329, -3, 0)),
    Part.ArcOfCircle(Part.Circle(Vector(326, -12, 0), Vector(0, 0, 1), 9), math.radians(-162), math.radians(71)),
    Part.LineSegment(Vector(329, 30, 0), Vector(320, 42, 0)),
    Part.ArcOfCircle(Part.Circle(Vector(328, 38, 0), Vector(0, 0, 1), 9), math.radians(-82), math.radians(157)),
    Part.LineSegment(Vector(222, -6, 0), Vector(234, -15, 0)),
    Part.ArcOfCircle(Part.Circle(Vector(226, -13, 0), Vector(0, 0, 1), 8), math.radians(121), math.radians(344)),
    Part.LineSegment(Vector(232, 42, 0), Vector(222, 32, 0)),
    Part.ArcOfCircle(Part.Circle(Vector(226, 38, 0), Vector(0, 0, 1), 7), math.radians(27), math.radians(243)),
], False)
sketch18.addConstraint([
    Sketcher.Constraint("Coincident", 0, 1, 1, 1),
    Sketcher.Constraint("Coincident", 1, 2, 0, 2),
    Sketcher.Constraint("Coincident", 2, 1, 3, 1),
    Sketcher.Constraint("Coincident", 3, 2, 2, 2),
    Sketcher.Constraint("Coincident", 4, 1, 5, 1),
    Sketcher.Constraint("Coincident", 5, 2, 4, 2),
    Sketcher.Constraint("Coincident", 6, 1, 7, 1),
    Sketcher.Constraint("Coincident", 7, 2, 6, 2),
    Sketcher.Constraint("Horizontal", 0, 1, 5, 2),
    Sketcher.Constraint("Horizontal", 3, 2, 6, 1),
    Sketcher.Constraint("Vertical", 1, 2, 2, 1),
    Sketcher.Constraint("Vertical", 4, 1, 7, 2),
    Sketcher.Constraint("Equal", 2, 4),
    Sketcher.Constraint("Angle", 6, Q("-135 deg")),
    Sketcher.Constraint("DistanceX", -1, 1, 6, 1, 232.0),
    Sketcher.Constraint("DistanceY", -1, 1, 7, 2, 32.0),
    Sketcher.Constraint("DistanceX", -1, 1, 3, 2, 319.5),
    Sketcher.Constraint("DistanceY", 4, 1, -1, 1, 5.5),
    Sketcher.Constraint("DistanceY", 0, 1, -1, 1, 14.95),
    Sketcher.Constraint("DistanceX", -1, 1, 1, 2, 328.95),
    Sketcher.Constraint("Radius", 1, 9.446351),
    Sketcher.Constraint("DistanceY", -1, 1, 3, 2, 41.825),
    Sketcher.Constraint("Radius", 3, 8.868927),
    Sketcher.Constraint("Radius", 5, 8.284813),
    Sketcher.Constraint("Radius", 7, 7.294596),
    Sketcher.Constraint("DistanceY", 5, 3, 3, 3, 51.036301),
    Sketcher.Constraint("Distance", 0, 16.93415),
    Sketcher.Constraint("DistanceY", 1, 3, -1, 1, 12.045218),
])
pad5 = body.newObject("PartDesign::Pad", "Pad004")
pad5.Profile = sketch18
pad5.Length = 0.2

doc.recompute()
